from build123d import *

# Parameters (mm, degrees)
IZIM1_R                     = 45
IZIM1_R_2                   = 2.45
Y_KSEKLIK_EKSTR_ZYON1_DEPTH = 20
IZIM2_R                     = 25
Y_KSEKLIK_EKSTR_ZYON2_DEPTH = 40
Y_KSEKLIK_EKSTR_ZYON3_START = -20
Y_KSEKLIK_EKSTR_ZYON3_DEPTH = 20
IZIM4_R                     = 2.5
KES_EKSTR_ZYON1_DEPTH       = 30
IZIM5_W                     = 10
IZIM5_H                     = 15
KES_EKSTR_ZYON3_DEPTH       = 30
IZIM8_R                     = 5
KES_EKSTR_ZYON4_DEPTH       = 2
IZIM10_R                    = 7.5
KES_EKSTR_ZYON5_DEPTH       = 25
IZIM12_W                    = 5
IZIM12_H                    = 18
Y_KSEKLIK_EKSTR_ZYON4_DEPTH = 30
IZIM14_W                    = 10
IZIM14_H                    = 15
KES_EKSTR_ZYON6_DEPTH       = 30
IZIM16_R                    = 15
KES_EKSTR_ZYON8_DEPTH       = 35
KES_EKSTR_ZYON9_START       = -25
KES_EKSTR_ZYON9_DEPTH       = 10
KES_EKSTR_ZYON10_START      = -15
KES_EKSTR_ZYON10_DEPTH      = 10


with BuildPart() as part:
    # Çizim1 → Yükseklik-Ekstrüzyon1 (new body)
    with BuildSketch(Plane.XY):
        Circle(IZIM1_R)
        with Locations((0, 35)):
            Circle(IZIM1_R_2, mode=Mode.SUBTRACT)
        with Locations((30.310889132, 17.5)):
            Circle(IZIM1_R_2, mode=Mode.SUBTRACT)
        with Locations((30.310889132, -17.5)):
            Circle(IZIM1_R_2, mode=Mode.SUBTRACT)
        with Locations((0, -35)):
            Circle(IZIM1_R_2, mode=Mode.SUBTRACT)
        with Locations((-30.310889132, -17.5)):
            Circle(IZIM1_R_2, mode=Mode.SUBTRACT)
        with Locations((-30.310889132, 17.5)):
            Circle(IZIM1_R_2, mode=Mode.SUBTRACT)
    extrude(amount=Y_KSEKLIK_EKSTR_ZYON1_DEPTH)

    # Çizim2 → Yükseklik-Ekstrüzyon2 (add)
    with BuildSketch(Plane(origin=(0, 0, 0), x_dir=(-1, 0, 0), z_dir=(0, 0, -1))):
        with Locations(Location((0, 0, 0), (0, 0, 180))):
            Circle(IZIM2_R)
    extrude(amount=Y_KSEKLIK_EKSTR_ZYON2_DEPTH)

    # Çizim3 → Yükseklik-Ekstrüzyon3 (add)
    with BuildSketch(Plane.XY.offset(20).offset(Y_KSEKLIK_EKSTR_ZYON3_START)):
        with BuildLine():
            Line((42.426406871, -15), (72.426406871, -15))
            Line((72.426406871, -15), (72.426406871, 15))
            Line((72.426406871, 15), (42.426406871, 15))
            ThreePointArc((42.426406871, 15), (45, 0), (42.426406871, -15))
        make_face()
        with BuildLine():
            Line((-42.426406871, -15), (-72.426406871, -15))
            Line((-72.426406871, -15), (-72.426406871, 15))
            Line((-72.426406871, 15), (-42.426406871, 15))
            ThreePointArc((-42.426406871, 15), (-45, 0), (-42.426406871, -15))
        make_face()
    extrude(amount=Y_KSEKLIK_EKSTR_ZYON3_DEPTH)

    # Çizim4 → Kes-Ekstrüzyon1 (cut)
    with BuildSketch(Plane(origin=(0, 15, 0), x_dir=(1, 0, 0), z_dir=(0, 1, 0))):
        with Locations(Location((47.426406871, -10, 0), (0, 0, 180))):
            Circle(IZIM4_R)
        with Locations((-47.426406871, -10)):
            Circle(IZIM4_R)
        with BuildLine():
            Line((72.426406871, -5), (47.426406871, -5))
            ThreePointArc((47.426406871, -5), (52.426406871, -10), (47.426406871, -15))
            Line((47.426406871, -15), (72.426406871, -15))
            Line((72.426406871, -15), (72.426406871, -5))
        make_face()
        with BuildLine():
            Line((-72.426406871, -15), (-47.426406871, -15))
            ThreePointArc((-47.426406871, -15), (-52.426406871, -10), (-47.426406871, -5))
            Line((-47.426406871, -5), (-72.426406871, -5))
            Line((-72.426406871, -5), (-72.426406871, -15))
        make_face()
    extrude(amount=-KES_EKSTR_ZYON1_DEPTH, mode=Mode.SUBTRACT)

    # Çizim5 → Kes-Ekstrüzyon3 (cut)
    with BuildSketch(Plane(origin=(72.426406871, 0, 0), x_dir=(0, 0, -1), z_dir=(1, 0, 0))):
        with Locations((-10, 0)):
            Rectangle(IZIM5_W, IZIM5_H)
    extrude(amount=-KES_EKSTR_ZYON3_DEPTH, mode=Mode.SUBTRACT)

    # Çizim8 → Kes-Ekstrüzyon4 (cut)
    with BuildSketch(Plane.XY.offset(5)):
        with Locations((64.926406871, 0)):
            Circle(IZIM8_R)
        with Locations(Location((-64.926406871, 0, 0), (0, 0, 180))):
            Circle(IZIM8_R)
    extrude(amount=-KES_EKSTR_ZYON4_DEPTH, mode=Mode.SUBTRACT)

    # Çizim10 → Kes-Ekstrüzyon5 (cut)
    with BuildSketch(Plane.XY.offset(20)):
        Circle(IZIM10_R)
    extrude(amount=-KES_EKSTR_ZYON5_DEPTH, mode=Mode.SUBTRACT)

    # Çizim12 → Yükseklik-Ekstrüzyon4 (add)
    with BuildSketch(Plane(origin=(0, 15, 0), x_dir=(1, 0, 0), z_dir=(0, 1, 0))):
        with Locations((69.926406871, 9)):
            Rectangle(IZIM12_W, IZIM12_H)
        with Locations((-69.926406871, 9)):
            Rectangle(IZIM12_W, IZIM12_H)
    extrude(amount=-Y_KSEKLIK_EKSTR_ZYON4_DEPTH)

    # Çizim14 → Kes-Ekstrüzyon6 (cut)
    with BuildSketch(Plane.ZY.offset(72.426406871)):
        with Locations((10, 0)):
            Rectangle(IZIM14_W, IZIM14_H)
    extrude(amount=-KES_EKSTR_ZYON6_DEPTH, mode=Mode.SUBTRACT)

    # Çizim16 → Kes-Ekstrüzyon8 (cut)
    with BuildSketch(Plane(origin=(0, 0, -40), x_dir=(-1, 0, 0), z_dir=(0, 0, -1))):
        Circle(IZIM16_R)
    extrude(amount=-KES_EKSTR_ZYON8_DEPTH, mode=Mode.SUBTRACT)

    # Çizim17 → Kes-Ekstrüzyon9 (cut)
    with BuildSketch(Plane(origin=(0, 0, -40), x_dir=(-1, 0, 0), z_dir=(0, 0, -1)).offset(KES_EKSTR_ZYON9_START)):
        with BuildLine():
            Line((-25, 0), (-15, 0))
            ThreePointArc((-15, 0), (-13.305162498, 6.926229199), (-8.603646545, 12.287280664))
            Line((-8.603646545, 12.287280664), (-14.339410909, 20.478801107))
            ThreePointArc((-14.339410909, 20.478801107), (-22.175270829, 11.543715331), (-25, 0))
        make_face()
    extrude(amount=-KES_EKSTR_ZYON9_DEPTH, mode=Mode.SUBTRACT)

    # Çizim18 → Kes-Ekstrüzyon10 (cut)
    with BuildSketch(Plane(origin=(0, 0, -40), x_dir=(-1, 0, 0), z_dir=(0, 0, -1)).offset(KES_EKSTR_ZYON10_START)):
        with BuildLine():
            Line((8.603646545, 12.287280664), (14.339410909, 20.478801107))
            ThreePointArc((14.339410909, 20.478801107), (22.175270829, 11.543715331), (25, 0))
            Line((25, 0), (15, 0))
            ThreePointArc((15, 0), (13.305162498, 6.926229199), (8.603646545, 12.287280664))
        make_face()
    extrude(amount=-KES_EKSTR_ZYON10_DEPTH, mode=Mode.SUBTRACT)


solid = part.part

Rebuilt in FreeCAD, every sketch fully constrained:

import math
import FreeCAD as App
import Part
import Sketcher
from FreeCAD import Vector
Q = App.Units.Quantity

doc = App.newDocument("Part")
body = doc.addObject("PartDesign::Body", "Body")

sketch1 = doc.addObject("Sketcher::SketchObject", "Sketch")
body.addObject(sketch1)
sketch1.AttachmentSupport = (doc.XY_Plane, [""])
sketch1.MapMode = "FlatFace"
sketch1.addGeometry(Part.Circle(Vector(0, 0, 0), Vector(0, 0, 1), 45), False)
sketch1.addGeometry(Part.Circle(Vector(0, -35, 0), Vector(0, 0, 1), 2.5), False)
sketch1.addGeometry(Part.Circle(Vector(-30.3, -17.5, 0), Vector(0, 0, 1), 2.5), False)
sketch1.addGeometry(Part.Circle(Vector(30.3, -17.5, 0), Vector(0, 0, 1), 2.5), False)
sketch1.addGeometry(Part.Circle(Vector(-30.3, 17.5, 0), Vector(0, 0, 1), 2.5), False)
sketch1.addGeometry(Part.Circle(Vector(0, 35, 0), Vector(0, 0, 1), 2.5), False)
sketch1.addGeometry(Part.Circle(Vector(30.3, 17.5, 0), Vector(0, 0, 1), 2.5), False)
sketch1.addConstraint(Sketcher.Constraint("Coincident", 0, 3, -1, 1))
sketch1.addConstraint(Sketcher.Constraint("Equal", 1, 2))
sketch1.addConstraint(Sketcher.Constraint("Equal", 2, 3))
sketch1.addConstraint(Sketcher.Constraint("Equal", 3, 4))
sketch1.addConstraint(Sketcher.Constraint("Equal", 4, 5))
sketch1.addConstraint(Sketcher.Constraint("Equal", 5, 6))
sketch1.addConstraint(Sketcher.Constraint("Symmetric", 3, 3, 4, 3, -1, 1))
sketch1.addConstraint(Sketcher.Constraint("Symmetric", 1, 3, 5, 3, -1, 1))
sketch1.addConstraint(Sketcher.Constraint("Symmetric", 2, 3, 6, 3, -1, 1))
sketch1.addConstraint(Sketcher.Constraint("Symmetric", 2, 3, 3, 3, -2))
sketch1.addConstraint(Sketcher.Constraint("PointOnObject", 1, 3, -2))
sketch1.addConstraint(Sketcher.Constraint("Diameter", 0, Q("90 mm")))
sketch1.addConstraint(Sketcher.Constraint("Diameter", 1, Q("4.9 mm")))
sketch1.addConstraint(Sketcher.Constraint("DistanceY", 1, 3, -1, 1, Q("35 mm")))
sketch1.addConstraint(Sketcher.Constraint("DistanceY", 2, 3, 4, 3, Q("35 mm")))
sketch1.addConstraint(Sketcher.Constraint("DistanceX", 2, 3, -1, 1, Q("30.310889 mm")))
pad1 = doc.addObject("PartDesign::Pad", "Pad")
body.addObject(pad1)
pad1.Profile = sketch1
pad1.Length = 20

sketch2 = doc.addObject("Sketcher::SketchObject", "Sketch001")
body.addObject(sketch2)
sketch2.AttachmentSupport = (doc.XY_Plane, [""])
sketch2.MapMode = "FlatFace"
sketch2.addGeometry(Part.Circle(Vector(0, 0, 0), Vector(0, 0, 1), 25), False)
sketch2.addConstraint(Sketcher.Constraint("Coincident", 0, 3, -1, 1))
sketch2.addConstraint(Sketcher.Constraint("Diameter", 0, Q("50 mm")))
pad2 = doc.addObject("PartDesign::Pad", "Pad001")
body.addObject(pad2)
pad2.Profile = sketch2
pad2.Length = 40
pad2.Reversed = True

sketch3 = doc.addObject("Sketcher::SketchObject", "Sketch002")
body.addObject(sketch3)
sketch3.AttachmentSupport = (doc.XY_Plane, [""])
sketch3.MapMode = "FlatFace"
sketch3.addGeometry(Part.LineSegment(Vector(42, -15, 0), Vector(72, -15, 0)), False)
sketch3.addGeometry(Part.LineSegment(Vector(72, -15, 0), Vector(72, 15, 0)), False)
sketch3.addGeometry(Part.LineSegment(Vector(72, 15, 0), Vector(42, 15, 0)), False)
sketch3.addGeometry(Part.ArcOfCircle(Part.Circle(Vector(0, 0, 0), Vector(0, 0, 1), 45), math.radians(-19), math.radians(19)), False)
sketch3.addGeometry(Part.LineSegment(Vector(-72, -15, 0), Vector(-42, -15, 0)), False)
sketch3.addGeometry(Part.ArcOfCircle(Part.Circle(Vector(0, 0, 0), Vector(0, 0, 1), 45), math.radians(161), math.radians(199)), False)
sketch3.addGeometry(Part.LineSegment(Vector(-42, 15, 0), Vector(-72, 15, 0)), False)
sketch3.addGeometry(Part.LineSegment(Vector(-72, 15, 0), Vector(-72, -15, 0)), False)
sketch3.addConstraint(Sketcher.Constraint("Coincident", 0, 2, 1, 1))
sketch3.addConstraint(Sketcher.Constraint("Coincident", 1, 2, 2, 1))
sketch3.addConstraint(Sketcher.Constraint("Coincident", 2, 2, 3, 2))
sketch3.addConstraint(Sketcher.Constraint("Coincident", 3, 1, 0, 1))
sketch3.addConstraint(Sketcher.Constraint("Coincident", 4, 2, 5, 2))
sketch3.addConstraint(Sketcher.Constraint("Coincident", 5, 1, 6, 1))
sketch3.addConstraint(Sketcher.Constraint("Coincident", 6, 2, 7, 1))
sketch3.addConstraint(Sketcher.Constraint("Coincident", 7, 2, 4, 1))
sketch3.addConstraint(Sketcher.Constraint("Horizontal", 0))
sketch3.addConstraint(Sketcher.Constraint("Vertical", 1))
sketch3.addConstraint(Sketcher.Constraint("Horizontal", 2))
sketch3.addConstraint(Sketcher.Constraint("Horizontal", 4))
sketch3.addConstraint(Sketcher.Constraint("Horizontal", 6))
sketch3.addConstraint(Sketcher.Constraint("Vertical", 7))
sketch3.addConstraint(Sketcher.Constraint("Coincident", 3, 3, -1, 1))
sketch3.addConstraint(Sketcher.Constraint("Coincident", 5, 3, -1, 1))
sketch3.addConstraint(Sketcher.Constraint("Equal", 3, 5))
sketch3.addConstraint(Sketcher.Constraint("Symmetric", 0, 2, 6, 2, -1, 1))
sketch3.addConstraint(Sketcher.Constraint("Horizontal", 3, 1, 4, 2))
sketch3.addConstraint(Sketcher.Constraint("Horizontal", 2, 2, 5, 1))
sketch3.addConstraint(Sketcher.Constraint("Equal", 6, 1))
sketch3.addConstraint(Sketcher.Constraint("Radius", 3, Q("45 mm")))
sketch3.addConstraint(Sketcher.Constraint("DistanceX", 0, 1, 0, 2, Q("30 mm")))
pad3 = doc.addObject("PartDesign::Pad", "Pad002")
body.addObject(pad3)
pad3.Profile = sketch3
pad3.Length = 20

sketch4 = doc.addObject("Sketcher::SketchObject", "Sketch003")
body.addObject(sketch4)
sketch4.AttachmentSupport = (doc.XZ_Plane, [""])
sketch4.MapMode = "FlatFace"
sketch4.AttachmentOffset = App.Placement(Vector(0, 0, -15), App.Rotation())
sketch4.addGeometry(Part.Circle(Vector(47.4, 10, 0), Vector(0, 0, 1), 2.5), False)
sketch4.addGeometry(Part.Circle(Vector(-47.4, 10, 0), Vector(0, 0, 1), 2.5), False)
sketch4.addGeometry(Part.LineSegment(Vector(72.4, 5, 0), Vector(47.4, 5, 0)), False)
sketch4.addGeometry(Part.ArcOfCircle(Part.Circle(Vector(47.4, 10, 0), Vector(0, 0, 1), 5), math.radians(-90), math.radians(90)), False)
sketch4.addGeometry(Part.LineSegment(Vector(47.4, 15, 0), Vector(72.4, 15, 0)), False)
sketch4.addGeometry(Part.LineSegment(Vector(72.4, 15, 0), Vector(72.4, 5, 0)), False)
sketch4.addGeometry(Part.LineSegment(Vector(-72.4, 15, 0), Vector(-47.4, 15, 0)), False)
sketch4.addGeometry(Part.ArcOfCircle(Part.Circle(Vector(-47.4, 10, 0), Vector(0, 0, 1), 5), math.radians(90), math.radians(270)), False)
sketch4.addGeometry(Part.LineSegment(Vector(-47.4, 5, 0), Vector(-72.4, 5, 0)), False)
sketch4.addGeometry(Part.LineSegment(Vector(-72.4, 5, 0), Vector(-72.4, 15, 0)), False)
sketch4.addConstraint(Sketcher.Constraint("Tangent", 2, 2, 3, 1))
sketch4.addConstraint(Sketcher.Constraint("Tangent", 3, 2, 4, 1))
sketch4.addConstraint(Sketcher.Constraint("Coincident", 4, 2, 5, 1))
sketch4.addConstraint(Sketcher.Constraint("Coincident", 5, 2, 2, 1))
sketch4.addConstraint(Sketcher.Constraint("Tangent", 6, 2, 7, 1))
sketch4.addConstraint(Sketcher.Constraint("Tangent", 7, 2, 8, 1))
sketch4.addConstraint(Sketcher.Constraint("Coincident", 8, 2, 9, 1))
sketch4.addConstraint(Sketcher.Constraint("Coincident", 9, 2, 6, 1))
sketch4.addConstraint(Sketcher.Constraint("Horizontal", 2))
sketch4.addConstraint(Sketcher.Constraint("Horizontal", 4))
sketch4.addConstraint(Sketcher.Constraint("Vertical", 5))
sketch4.addConstraint(Sketcher.Constraint("Horizontal", 6))
sketch4.addConstraint(Sketcher.Constraint("Horizontal", 8))
sketch4.addConstraint(Sketcher.Constraint("Vertical", 9))
sketch4.addConstraint(Sketcher.Constraint("Coincident", 3, 3, 0, 3))
sketch4.addConstraint(Sketcher.Constraint("Coincident", 7, 3, 1, 3))
sketch4.addConstraint(Sketcher.Constraint("Equal", 0, 1))
sketch4.addConstraint(Sketcher.Constraint("Equal", 3, 7))
sketch4.addConstraint(Sketcher.Constraint("Symmetric", 0, 3, 1, 3, -2))
sketch4.addConstraint(Sketcher.Constraint("Equal", 4, 6))
sketch4.addConstraint(Sketcher.Constraint("Diameter", 0, Q("5 mm")))
sketch4.addConstraint(Sketcher.Constraint("Radius", 3, Q("5 mm")))
sketch4.addConstraint(Sketcher.Constraint("DistanceX", 2, 2, 2, 1, Q("25 mm")))
sketch4.addConstraint(Sketcher.Constraint("DistanceY", -1, 1, 0, 3, Q("10 mm")))
sketch4.addConstraint(Sketcher.Constraint("DistanceX", -1, 1, 0, 3, Q("47.426407 mm")))
pocket1 = doc.addObject("PartDesign::Pocket", "Pocket")
body.addObject(pocket1)
pocket1.Profile = sketch4
pocket1.Length = 30
pocket1.Reversed = True

sketch5 = doc.addObject("Sketcher::SketchObject", "Sketch004")
body.addObject(sketch5)
sketch5.AttachmentSupport = (doc.YZ_Plane, [""])
sketch5.MapMode = "FlatFace"
sketch5.AttachmentOffset = App.Placement(Vector(0, 0, 72.426407), App.Rotation())
sketch5.addGeometry(Part.LineSegment(Vector(8, 15, 0), Vector(-8, 15, 0)), False)
sketch5.addGeometry(Part.LineSegment(Vector(-8, 15, 0), Vector(-8, 5, 0)), False)
sketch5.addGeometry(Part.LineSegment(Vector(-8, 5, 0), Vector(8, 5, 0)), False)
sketch5.addGeometry(Part.LineSegment(Vector(8, 5, 0), Vector(8, 15, 0)), False)
sketch5.addConstraint(Sketcher.Constraint("Coincident", 0, 2, 1, 1))
sketch5.addConstraint(Sketcher.Constraint("Coincident", 1, 2, 2, 1))
sketch5.addConstraint(Sketcher.Constraint("Coincident", 2, 2, 3, 1))
sketch5.addConstraint(Sketcher.Constraint("Coincident", 3, 2, 0, 1))
sketch5.addConstraint(Sketcher.Constraint("Horizontal", 0))
sketch5.addConstraint(Sketcher.Constraint("Vertical", 1))
sketch5.addConstraint(Sketcher.Constraint("Horizontal", 2))
sketch5.addConstraint(Sketcher.Constraint("Vertical", 3))
sketch5.addConstraint(Sketcher.Constraint("DistanceX", 0, 2, 0, 1, Q("15 mm")))
sketch5.addConstraint(Sketcher.Constraint("DistanceY", 1, 2, 1, 1, Q("10 mm")))
sketch5.addConstraint(Sketcher.Constraint("DistanceY", -1, 1, 0, 2, Q("15 mm")))
sketch5.addConstraint(Sketcher.Constraint("DistanceX", 0, 2, -1, 1, Q("7.5 mm")))
pocket2 = doc.addObject("PartDesign::Pocket", "Pocket001")
body.addObject(pocket2)
pocket2.Profile = sketch5
pocket2.Length = 30

sketch6 = doc.addObject("Sketcher::SketchObject", "Sketch005")
body.addObject(sketch6)
sketch6.AttachmentSupport = (doc.XY_Plane, [""])
sketch6.MapMode = "FlatFace"
sketch6.AttachmentOffset = App.Placement(Vector(0, 0, 5), App.Rotation())
sketch6.addGeometry(Part.Circle(Vector(65, 0, 0), Vector(0, 0, 1), 5), False)
sketch6.addGeometry(Part.Circle(Vector(-65, 0, 0), Vector(0, 0, 1), 5), False)
sketch6.addConstraint(Sketcher.Constraint("Equal", 0, 1))
sketch6.addConstraint(Sketcher.Constraint("Symmetric", 0, 3, 1, 3, -1, 1))
sketch6.addConstraint(Sketcher.Constraint("PointOnObject", 0, 3, -1))
sketch6.addConstraint(Sketcher.Constraint("Diameter", 0, Q("10 mm")))
sketch6.addConstraint(Sketcher.Constraint("DistanceX", -1, 1, 0, 3, Q("64.926407 mm")))
pocket3 = doc.addObject("PartDesign::Pocket", "Pocket002")
body.addObject(pocket3)
pocket3.Profile = sketch6
pocket3.Length = 2

sketch7 = doc.addObject("Sketcher::SketchObject", "Sketch006")
body.addObject(sketch7)
sketch7.AttachmentSupport = (doc.XY_Plane, [""])
sketch7.MapMode = "FlatFace"
sketch7.AttachmentOffset = App.Placement(Vector(0, 0, 20), App.Rotation())
sketch7.addGeometry(Part.Circle(Vector(0, 0, 0), Vector(0, 0, 1), 8), False)
sketch7.addConstraint(Sketcher.Constraint("Coincident", 0, 3, -1, 1))
sketch7.addConstraint(Sketcher.Constraint("Diameter", 0, Q("15 mm")))
pocket4 = doc.addObject("PartDesign::Pocket", "Pocket003")
body.addObject(pocket4)
pocket4.Profile = sketch7
pocket4.Length = 25

sketch8 = doc.addObject("Sketcher::SketchObject", "Sketch007")
body.addObject(sketch8)
sketch8.AttachmentSupport = (doc.XZ_Plane, [""])
sketch8.MapMode = "FlatFace"
sketch8.AttachmentOffset = App.Placement(Vector(0, 0, -15), App.Rotation())
sketch8.addGeometry(Part.LineSegment(Vector(67, -18, 0), Vector(67, 0, 0)), False)
sketch8.addGeometry(Part.LineSegment(Vector(67, 0, 0), Vector(72, 0, 0)), False)
sketch8.addGeometry(Part.LineSegment(Vector(72, 0, 0), Vector(72, -18, 0)), False)
sketch8.addGeometry(Part.LineSegment(Vector(72, -18, 0), Vector(67, -18, 0)), False)
sketch8.addGeometry(Part.LineSegment(Vector(-72, -18, 0), Vector(-72, 0, 0)), False)
sketch8.addGeometry(Part.LineSegment(Vector(-72, 0, 0), Vector(-67, 0, 0)), False)
sketch8.addGeometry(Part.LineSegment(Vector(-67, 0, 0), Vector(-67, -18, 0)), False)
sketch8.addGeometry(Part.LineSegment(Vector(-67, -18, 0), Vector(-72, -18, 0)), False)
sketch8.addConstraint(Sketcher.Constraint("Coincident", 0, 2, 1, 1))
sketch8.addConstraint(Sketcher.Constraint("Coincident", 1, 2, 2, 1))
sketch8.addConstraint(Sketcher.Constraint("Coincident", 2, 2, 3, 1))
sketch8.addConstraint(Sketcher.Constraint("Coincident", 3, 2, 0, 1))
sketch8.addConstraint(Sketcher.Constraint("Coincident", 4, 2, 5, 1))
sketch8.addConstraint(Sketcher.Constraint("Coincident", 5, 2, 6, 1))
sketch8.addConstraint(Sketcher.Constraint("Coincident", 6, 2, 7, 1))
sketch8.addConstraint(Sketcher.Constraint("Coincident", 7, 2, 4, 1))
sketch8.addConstraint(Sketcher.Constraint("Vertical", 0))
sketch8.addConstraint(Sketcher.Constraint("Horizontal", 1))
sketch8.addConstraint(Sketcher.Constraint("Vertical", 2))
sketch8.addConstraint(Sketcher.Constraint("Horizontal", 3))
sketch8.addConstraint(Sketcher.Constraint("Vertical", 4))
sketch8.addConstraint(Sketcher.Constraint("Horizontal", 5))
sketch8.addConstraint(Sketcher.Constraint("Vertical", 6))
sketch8.addConstraint(Sketcher.Constraint("Horizontal", 7))
sketch8.addConstraint(Sketcher.Constraint("Symmetric", 1, 2, 4, 2, -1, 1))
sketch8.addConstraint(Sketcher.Constraint("Symmetric", 0, 2, 5, 2, -2))
sketch8.addConstraint(Sketcher.Constraint("Horizontal", 3, 2, 6, 2))
sketch8.addConstraint(Sketcher.Constraint("DistanceX", 1, 1, 1, 2, Q("5 mm")))
sketch8.addConstraint(Sketcher.Constraint("DistanceY", 0, 1, 0, 2, Q("18 mm")))
sketch8.addConstraint(Sketcher.Constraint("DistanceX", -1, 1, 0, 2, Q("67.426407 mm")))
pad4 = doc.addObject("PartDesign::Pad", "Pad003")
body.addObject(pad4)
pad4.Profile = sketch8
pad4.Length = 30

sketch9 = doc.addObject("Sketcher::SketchObject", "Sketch008")
body.addObject(sketch9)
sketch9.AttachmentSupport = (doc.YZ_Plane, [""])
sketch9.MapMode = "FlatFace"
sketch9.AttachmentOffset = App.Placement(Vector(0, 0, -72.426407), App.Rotation())
sketch9.addGeometry(Part.LineSegment(Vector(8, 5, 0), Vector(-8, 5, 0)), False)
sketch9.addGeometry(Part.LineSegment(Vector(-8, 5, 0), Vector(-8, 15, 0)), False)
sketch9.addGeometry(Part.LineSegment(Vector(-8, 15, 0), Vector(8, 15, 0)), False)
sketch9.addGeometry(Part.LineSegment(Vector(8, 15, 0), Vector(8, 5, 0)), False)
sketch9.addConstraint(Sketcher.Constraint("Coincident", 0, 2, 1, 1))
sketch9.addConstraint(Sketcher.Constraint("Coincident", 1, 2, 2, 1))
sketch9.addConstraint(Sketcher.Constraint("Coincident", 2, 2, 3, 1))
sketch9.addConstraint(Sketcher.Constraint("Coincident", 3, 2, 0, 1))
sketch9.addConstraint(Sketcher.Constraint("Horizontal", 0))
sketch9.addConstraint(Sketcher.Constraint("Vertical", 1))
sketch9.addConstraint(Sketcher.Constraint("Horizontal", 2))
sketch9.addConstraint(Sketcher.Constraint("Vertical", 3))
sketch9.addConstraint(Sketcher.Constraint("DistanceX", 0, 2, 0, 1, Q("15 mm")))
sketch9.addConstraint(Sketcher.Constraint("DistanceY", 1, 1, 1, 2, Q("10 mm")))
sketch9.addConstraint(Sketcher.Constraint("DistanceY", -1, 1, 0, 2, Q("5 mm")))
sketch9.addConstraint(Sketcher.Constraint("DistanceX", 0, 2, -1, 1, Q("7.5 mm")))
pocket5 = doc.addObject("PartDesign::Pocket", "Pocket004")
body.addObject(pocket5)
pocket5.Profile = sketch9
pocket5.Length = 30
pocket5.Reversed = True

sketch10 = doc.addObject("Sketcher::SketchObject", "Sketch009")
body.addObject(sketch10)
sketch10.AttachmentSupport = (doc.XY_Plane, [""])
sketch10.MapMode = "FlatFace"
sketch10.AttachmentOffset = App.Placement(Vector(0, 0, -40), App.Rotation())
sketch10.addGeometry(Part.Circle(Vector(0, 0, 0), Vector(0, 0, 1), 15), False)
sketch10.addConstraint(Sketcher.Constraint("Coincident", 0, 3, -1, 1))
sketch10.addConstraint(Sketcher.Constraint("Diameter", 0, Q("30 mm")))
pocket6 = doc.addObject("PartDesign::Pocket", "Pocket005")
body.addObject(pocket6)
pocket6.Profile = sketch10
pocket6.Length = 35
pocket6.Reversed = True

sketch11 = doc.addObject("Sketcher::SketchObject", "Sketch010")
body.addObject(sketch11)
sketch11.AttachmentSupport = (doc.XY_Plane, [""])
sketch11.MapMode = "FlatFace"
sketch11.AttachmentOffset = App.Placement(Vector(0, 0, -15), App.Rotation())
sketch11.addGeometry(Part.LineSegment(Vector(25, 0, 0), Vector(15, 0, 0)), False)
sketch11.addGeometry(Part.ArcOfCircle(Part.Circle(Vector(0, 0, 0), Vector(0, 0, 1), 15), math.radians(0), math.radians(55)), False)
sketch11.addGeometry(Part.LineSegment(Vector(9, 12, 0), Vector(14, 20, 0)), False)
sketch11.addGeometry(Part.ArcOfCircle(Part.Circle(Vector(0, 0, 0), Vector(0, 0, 1), 25), math.radians(0), math.radians(55)), False)
sketch11.addConstraint(Sketcher.Constraint("Coincident", 0, 2, 1, 1))
sketch11.addConstraint(Sketcher.Constraint("Coincident", 1, 2, 2, 1))
sketch11.addConstraint(Sketcher.Constraint("Coincident", 2, 2, 3, 2))
sketch11.addConstraint(Sketcher.Constraint("Coincident", 3, 1, 0, 1))
sketch11.addConstraint(Sketcher.Constraint("Horizontal", 0))
sketch11.addConstraint(Sketcher.Constraint("Coincident", 1, 3, -1, 1))
sketch11.addConstraint(Sketcher.Constraint("Coincident", 3, 3, -1, 1))
sketch11.addConstraint(Sketcher.Constraint("PointOnObject", 0, 2, -1))
sketch11.addConstraint(Sketcher.Constraint("Radius", 1, Q("15 mm")))
sketch11.addConstraint(Sketcher.Constraint("Radius", 3, Q("25 mm")))
sketch11.addConstraint(Sketcher.Constraint("Angle", 2, Q("55 deg")))
sketch11.addConstraint(Sketcher.Constraint("DistanceY", -1, 1, 2, 2, Q("20.478801 mm")))
pocket7 = doc.addObject("PartDesign::Pocket", "Pocket006")
body.addObject(pocket7)
pocket7.Profile = sketch11
pocket7.Length = 10
pocket7.Reversed = True

sketch12 = doc.addObject("Sketcher::SketchObject", "Sketch011")
body.addObject(sketch12)
sketch12.AttachmentSupport = (doc.XY_Plane, [""])
sketch12.MapMode = "FlatFace"
sketch12.AttachmentOffset = App.Placement(Vector(0, 0, -25), App.Rotation())
sketch12.addGeometry(Part.LineSegment(Vector(-14, 20, 0), Vector(-9, 12, 0)), False)
sketch12.addGeometry(Part.ArcOfCircle(Part.Circle(Vector(0, 0, 0), Vector(0, 0, 1), 15), math.radians(125), math.radians(180)), False)
sketch12.addGeometry(Part.LineSegment(Vector(-15, 0, 0), Vector(-25, 0, 0)), False)
sketch12.addGeometry(Part.ArcOfCircle(Part.Circle(Vector(0, 0, 0), Vector(0, 0, 1), 25), math.radians(125), math.radians(180)), False)
sketch12.addConstraint(Sketcher.Constraint("Coincident", 0, 2, 1, 1))
sketch12.addConstraint(Sketcher.Constraint("Coincident", 1, 2, 2, 1))
sketch12.addConstraint(Sketcher.Constraint("Coincident", 2, 2, 3, 2))
sketch12.addConstraint(Sketcher.Constraint("Coincident", 3, 1, 0, 1))
sketch12.addConstraint(Sketcher.Constraint("Horizontal", 2))
sketch12.addConstraint(Sketcher.Constraint("Coincident", 1, 3, -1, 1))
sketch12.addConstraint(Sketcher.Constraint("Coincident", 3, 3, -1, 1))
sketch12.addConstraint(Sketcher.Constraint("PointOnObject", 1, 2, -1))
sketch12.addConstraint(Sketcher.Constraint("Radius", 1, Q("15 mm")))
sketch12.addConstraint(Sketcher.Constraint("Radius", 3, Q("25 mm")))
sketch12.addConstraint(Sketcher.Constraint("Angle", 0, Q("-55 deg")))
sketch12.addConstraint(Sketcher.Constraint("DistanceY", -1, 1, 3, 1, Q("20.478801 mm")))
pocket8 = doc.addObject("PartDesign::Pocket", "Pocket007")
body.addObject(pocket8)
pocket8.Profile = sketch12
pocket8.Length = 10
pocket8.Reversed = True

doc.recompute()
